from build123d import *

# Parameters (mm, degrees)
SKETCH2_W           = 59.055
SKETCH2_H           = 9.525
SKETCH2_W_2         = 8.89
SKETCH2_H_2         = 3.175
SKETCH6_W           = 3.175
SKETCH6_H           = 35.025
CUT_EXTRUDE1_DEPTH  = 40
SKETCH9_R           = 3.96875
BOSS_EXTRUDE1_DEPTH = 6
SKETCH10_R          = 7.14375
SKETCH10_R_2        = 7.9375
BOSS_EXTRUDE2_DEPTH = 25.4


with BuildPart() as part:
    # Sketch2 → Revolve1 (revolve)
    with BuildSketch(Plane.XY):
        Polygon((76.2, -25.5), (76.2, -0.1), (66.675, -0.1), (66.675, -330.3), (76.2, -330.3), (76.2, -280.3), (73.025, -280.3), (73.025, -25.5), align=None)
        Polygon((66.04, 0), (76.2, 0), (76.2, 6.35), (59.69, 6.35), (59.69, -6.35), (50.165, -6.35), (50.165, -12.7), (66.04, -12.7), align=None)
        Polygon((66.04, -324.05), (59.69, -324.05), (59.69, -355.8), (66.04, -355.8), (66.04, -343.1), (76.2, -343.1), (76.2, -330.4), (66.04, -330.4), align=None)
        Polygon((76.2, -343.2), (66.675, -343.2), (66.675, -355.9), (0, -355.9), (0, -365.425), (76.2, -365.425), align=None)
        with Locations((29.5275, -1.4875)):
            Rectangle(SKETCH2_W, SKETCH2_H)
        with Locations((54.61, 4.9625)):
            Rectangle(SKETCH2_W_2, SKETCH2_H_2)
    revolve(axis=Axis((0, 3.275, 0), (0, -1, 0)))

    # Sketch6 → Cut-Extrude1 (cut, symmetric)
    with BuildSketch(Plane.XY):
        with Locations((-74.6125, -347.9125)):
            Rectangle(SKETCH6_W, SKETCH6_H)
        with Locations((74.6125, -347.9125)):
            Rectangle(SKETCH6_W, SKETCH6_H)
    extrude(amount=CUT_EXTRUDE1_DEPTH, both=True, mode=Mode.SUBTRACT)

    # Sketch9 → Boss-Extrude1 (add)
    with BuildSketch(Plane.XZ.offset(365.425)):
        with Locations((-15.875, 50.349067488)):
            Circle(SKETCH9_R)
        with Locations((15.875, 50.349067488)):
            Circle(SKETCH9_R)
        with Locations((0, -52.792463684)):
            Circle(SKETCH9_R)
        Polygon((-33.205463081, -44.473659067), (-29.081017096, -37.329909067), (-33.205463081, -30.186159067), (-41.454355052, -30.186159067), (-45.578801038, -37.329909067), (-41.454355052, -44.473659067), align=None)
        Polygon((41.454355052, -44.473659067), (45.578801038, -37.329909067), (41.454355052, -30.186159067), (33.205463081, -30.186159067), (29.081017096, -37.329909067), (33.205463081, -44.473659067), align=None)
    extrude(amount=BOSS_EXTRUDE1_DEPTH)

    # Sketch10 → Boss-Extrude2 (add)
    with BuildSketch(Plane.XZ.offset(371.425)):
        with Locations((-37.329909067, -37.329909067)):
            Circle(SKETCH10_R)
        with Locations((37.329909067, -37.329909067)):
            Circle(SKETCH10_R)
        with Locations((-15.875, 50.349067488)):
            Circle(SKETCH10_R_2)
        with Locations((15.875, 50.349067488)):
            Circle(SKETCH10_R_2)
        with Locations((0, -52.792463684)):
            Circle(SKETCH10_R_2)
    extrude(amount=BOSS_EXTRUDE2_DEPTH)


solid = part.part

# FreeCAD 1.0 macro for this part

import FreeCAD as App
import Part
import Sketcher
Q = App.Units.Quantity

doc = App.newDocument("Part")
body = doc.addObject("PartDesign::Body", "Body")
body.AllowCompound = True

# Sketch on XY plane
sketch1 = body.newObject("Sketcher::SketchObject", "Sketch")
sketch1.AttachmentSupport = (doc.getObject("XY_Plane"), [""])
sketch1.MapMode = "FlatFace"
sketch1.addGeometry(Part.LineSegment(App.Vector(76.2, -25.5, 0), App.Vector(76.2, -0.1, 0)), False)
sketch1.addGeometry(Part.LineSegment(App.Vector(76.2, -0.1, 0), App.Vector(66.7, -0.1, 0)), False)
sketch1.addGeometry(Part.LineSegment(App.Vector(66.7, -0.1, 0), App.Vector(66.7, -330.3, 0)), False)
sketch1.addGeometry(Part.LineSegment(App.Vector(66.7, -330.3, 0), App.Vector(76.2, -330.3, 0)), False)
sketch1.addGeometry(Part.LineSegment(App.Vector(76.2, -330.3, 0), App.Vector(76.2, -280.3, 0)), False)
sketch1.addGeometry(Part.LineSegment(App.Vector(76.2, -280.3, 0), App.Vector(73, -280.3, 0)), False)
sketch1.addGeometry(Part.LineSegment(App.Vector(73, -280.3, 0), App.Vector(73, -25.5, 0)), False)
sketch1.addGeometry(Part.LineSegment(App.Vector(73, -25.5, 0), App.Vector(76.2, -25.5, 0)), False)
sketch1.addGeometry(Part.LineSegment(App.Vector(66, 0, 0), App.Vector(76.2, 0, 0)), False)
sketch1.addGeometry(Part.LineSegment(App.Vector(76.2, 0, 0), App.Vector(76.2, 6.3, 0)), False)
sketch1.addGeometry(Part.LineSegment(App.Vector(76.2, 6.3, 0), App.Vector(59.7, 6.3, 0)), False)
sketch1.addGeometry(Part.LineSegment(App.Vector(59.7, 6.3, 0), App.Vector(59.7, -6.3, 0)), False)
sketch1.addGeometry(Part.LineSegment(App.Vector(59.7, -6.3, 0), App.Vector(50.2, -6.3, 0)), False)
sketch1.addGeometry(Part.LineSegment(App.Vector(50.2, -6.3, 0), App.Vector(50.2, -12.7, 0)), False)
sketch1.addGeometry(Part.LineSegment(App.Vector(50.2, -12.7, 0), App.Vector(66, -12.7, 0)), False)
sketch1.addGeometry(Part.LineSegment(App.Vector(66, -12.7, 0), App.Vector(66, 0, 0)), False)
sketch1.addGeometry(Part.LineSegment(App.Vector(66, -324.1, 0), App.Vector(59.7, -324.1, 0)), False)
sketch1.addGeometry(Part.LineSegment(App.Vector(59.7, -324.1, 0), App.Vector(59.7, -355.8, 0)), False)
sketch1.addGeometry(Part.LineSegment(App.Vector(59.7, -355.8, 0), App.Vector(66, -355.8, 0)), False)
sketch1.addGeometry(Part.LineSegment(App.Vector(66, -355.8, 0), App.Vector(66, -343.1, 0)), False)
sketch1.addGeometry(Part.LineSegment(App.Vector(66, -343.1, 0), App.Vector(76.2, -343.1, 0)), False)
sketch1.addGeometry(Part.LineSegment(App.Vector(76.2, -343.1, 0), App.Vector(76.2, -330.4, 0)), False)
sketch1.addGeometry(Part.LineSegment(App.Vector(76.2, -330.4, 0), App.Vector(66, -330.4, 0)), False)
sketch1.addGeometry(Part.LineSegment(App.Vector(66, -330.4, 0), App.Vector(66, -324.1, 0)), False)
sketch1.addGeometry(Part.LineSegment(App.Vector(76.2, -343.2, 0), App.Vector(66.7, -343.2, 0)), False)
sketch1.addGeometry(Part.LineSegment(App.Vector(66.7, -343.2, 0), App.Vector(66.7, -355.9, 0)), False)
sketch1.addGeometry(Part.LineSegment(App.Vector(66.7, -355.9, 0), App.Vector(0, -355.9, 0)), False)
sketch1.addGeometry(Part.LineSegment(App.Vector(0, -355.9, 0), App.Vector(0, -365.4, 0)), False)
sketch1.addGeometry(Part.LineSegment(App.Vector(0, -365.4, 0), App.Vector(76.2, -365.4, 0)), False)
sketch1.addGeometry(Part.LineSegment(App.Vector(76.2, -365.4, 0), App.Vector(76.2, -343.2, 0)), False)
sketch1.addGeometry(Part.LineSegment(App.Vector(0, 3.3, 0), App.Vector(0, -6.2, 0)), False)
sketch1.addGeometry(Part.LineSegment(App.Vector(0, -6.2, 0), App.Vector(59.1, -6.2, 0)), False)
sketch1.addGeometry(Part.LineSegment(App.Vector(59.1, -6.2, 0), App.Vector(59.1, 3.3, 0)), False)
sketch1.addGeometry(Part.LineSegment(App.Vector(59.1, 3.3, 0), App.Vector(0, 3.3, 0)), False)
sketch1.addGeometry(Part.LineSegment(App.Vector(50.2, 6.5, 0), App.Vector(50.2, 3.4, 0)), False)
sketch1.addGeometry(Part.LineSegment(App.Vector(50.2, 3.4, 0), App.Vector(59.1, 3.4, 0)), False)
sketch1.addGeometry(Part.LineSegment(App.Vector(59.1, 3.4, 0), App.Vector(59.1, 6.5, 0)), False)
sketch1.addGeometry(Part.LineSegment(App.Vector(59.1, 6.5, 0), App.Vector(50.2, 6.5, 0)), False)
sketch1.addConstraint(Sketcher.Constraint("Coincident", 0, 2, 1, 1))
sketch1.addConstraint(Sketcher.Constraint("Coincident", 1, 2, 2, 1))
sketch1.addConstraint(Sketcher.Constraint("Coincident", 2, 2, 3, 1))
sketch1.addConstraint(Sketcher.Constraint("Coincident", 3, 2, 4, 1))
sketch1.addConstraint(Sketcher.Constraint("Coincident", 4, 2, 5, 1))
sketch1.addConstraint(Sketcher.Constraint("Coincident", 5, 2, 6, 1))
sketch1.addConstraint(Sketcher.Constraint("Coincident", 6, 2, 7, 1))
sketch1.addConstraint(Sketcher.Constraint("Coincident", 7, 2, 0, 1))
sketch1.addConstraint(Sketcher.Constraint("Coincident", 8, 2, 9, 1))
sketch1.addConstraint(Sketcher.Constraint("Coincident", 9, 2, 10, 1))
sketch1.addConstraint(Sketcher.Constraint("Coincident", 10, 2, 11, 1))
sketch1.addConstraint(Sketcher.Constraint("Coincident", 11, 2, 12, 1))
sketch1.addConstraint(Sketcher.Constraint("Coincident", 12, 2, 13, 1))
sketch1.addConstraint(Sketcher.Constraint("Coincident", 13, 2, 14, 1))
sketch1.addConstraint(Sketcher.Constraint("Coincident", 14, 2, 15, 1))
sketch1.addConstraint(Sketcher.Constraint("Coincident", 15, 2, 8, 1))
sketch1.addConstraint(Sketcher.Constraint("Coincident", 16, 2, 17, 1))
sketch1.addConstraint(Sketcher.Constraint("Coincident", 17, 2, 18, 1))
sketch1.addConstraint(Sketcher.Constraint("Coincident", 18, 2, 19, 1))
sketch1.addConstraint(Sketcher.Constraint("Coincident", 19, 2, 20, 1))
sketch1.addConstraint(Sketcher.Constraint("Coincident", 20, 2, 21, 1))
sketch1.addConstraint(Sketcher.Constraint("Coincident", 21, 2, 22, 1))
sketch1.addConstraint(Sketcher.Constraint("Coincident", 22, 2, 23, 1))
sketch1.addConstraint(Sketcher.Constraint("Coincident", 23, 2, 16, 1))
sketch1.addConstraint(Sketcher.Constraint("Coincident", 24, 2, 25, 1))
sketch1.addConstraint(Sketcher.Constraint("Coincident", 25, 2, 26, 1))
sketch1.addConstraint(Sketcher.Constraint("Coincident", 26, 2, 27, 1))
sketch1.addConstraint(Sketcher.Constraint("Coincident", 27, 2, 28, 1))
sketch1.addConstraint(Sketcher.Constraint("Coincident", 28, 2, 29, 1))
sketch1.addConstraint(Sketcher.Constraint("Coincident", 29, 2, 24, 1))
sketch1.addConstraint(Sketcher.Constraint("Coincident", 30, 2, 31, 1))
sketch1.addConstraint(Sketcher.Constraint("Coincident", 31, 2, 32, 1))
sketch1.addConstraint(Sketcher.Constraint("Coincident", 32, 2, 33, 1))
sketch1.addConstraint(Sketcher.Constraint("Coincident", 33, 2, 30, 1))
sketch1.addConstraint(Sketcher.Constraint("Coincident", 34, 2, 35, 1))
sketch1.addConstraint(Sketcher.Constraint("Coincident", 35, 2, 36, 1))
sketch1.addConstraint(Sketcher.Constraint("Coincident", 36, 2, 37, 1))
sketch1.addConstraint(Sketcher.Constraint("Coincident", 37, 2, 34, 1))
sketch1.addConstraint(Sketcher.Constraint("Vertical", 0))
sketch1.addConstraint(Sketcher.Constraint("Horizontal", 1))
sketch1.addConstraint(Sketcher.Constraint("Vertical", 2))
sketch1.addConstraint(Sketcher.Constraint("Horizontal", 3))
sketch1.addConstraint(Sketcher.Constraint("Vertical", 4))
sketch1.addConstraint(Sketcher.Constraint("Horizontal", 5))
sketch1.addConstraint(Sketcher.Constraint("Vertical", 6))
sketch1.addConstraint(Sketcher.Constraint("Horizontal", 7))
sketch1.addConstraint(Sketcher.Constraint("Horizontal", 8))
sketch1.addConstraint(Sketcher.Constraint("Vertical", 9))
sketch1.addConstraint(Sketcher.Constraint("Horizontal", 10))
sketch1.addConstraint(Sketcher.Constraint("Vertical", 11))
sketch1.addConstraint(Sketcher.Constraint("Horizontal", 12))
sketch1.addConstraint(Sketcher.Constraint("Vertical", 13))
sketch1.addConstraint(Sketcher.Constraint("Horizontal", 14))
sketch1.addConstraint(Sketcher.Constraint("Vertical", 15))
sketch1.addConstraint(Sketcher.Constraint("Horizontal", 16))
sketch1.addConstraint(Sketcher.Constraint("Vertical", 17))
sketch1.addConstraint(Sketcher.Constraint("Horizontal", 18))
sketch1.addConstraint(Sketcher.Constraint("Vertical", 19))
sketch1.addConstraint(Sketcher.Constraint("Horizontal", 20))
sketch1.addConstraint(Sketcher.Constraint("Vertical", 21))
sketch1.addConstraint(Sketcher.Constraint("Horizontal", 22))
sketch1.addConstraint(Sketcher.Constraint("Vertical", 23))
sketch1.addConstraint(Sketcher.Constraint("Horizontal", 24))
sketch1.addConstraint(Sketcher.Constraint("Vertical", 25))
sketch1.addConstraint(Sketcher.Constraint("Horizontal", 26))
sketch1.addConstraint(Sketcher.Constraint("Vertical", 27))
sketch1.addConstraint(Sketcher.Constraint("Horizontal", 28))
sketch1.addConstraint(Sketcher.Constraint("Vertical", 29))
sketch1.addConstraint(Sketcher.Constraint("Vertical", 30))
sketch1.addConstraint(Sketcher.Constraint("Horizontal", 31))
sketch1.addConstraint(Sketcher.Constraint("Vertical", 32))
sketch1.addConstraint(Sketcher.Constraint("Horizontal", 33))
sketch1.addConstraint(Sketcher.Constraint("Vertical", 34))
sketch1.addConstraint(Sketcher.Constraint("Horizontal", 35))
sketch1.addConstraint(Sketcher.Constraint("Vertical", 36))
sketch1.addConstraint(Sketcher.Constraint("Horizontal", 37))
sketch1.addConstraint(Sketcher.Constraint("PointOnObject", 8, 2, -1))
sketch1.addConstraint(Sketcher.Constraint("PointOnObject", 26, 2, -2))
sketch1.addConstraint(Sketcher.Constraint("PointOnObject", 30, 2, -2))
sketch1.addConstraint(Sketcher.Constraint("Vertical", 0, 2, 3, 2))
sketch1.addConstraint(Sketcher.Constraint("Vertical", 7, 2, 8, 2))
sketch1.addConstraint(Sketcher.Constraint("Vertical", 11, 2, 16, 2))
sketch1.addConstraint(Sketcher.Constraint("Vertical", 15, 2, 18, 2))
sketch1.addConstraint(Sketcher.Constraint("Vertical", 9, 2, 20, 2))
sketch1.addConstraint(Sketcher.Constraint("Vertical", 19, 2, 22, 2))
sketch1.addConstraint(Sketcher.Constraint("Vertical", 2, 2, 24, 2))
sketch1.addConstraint(Sketcher.Constraint("Vertical", 21, 2, 28, 2))
sketch1.addConstraint(Sketcher.Constraint("Vertical", 13, 2, 34, 2))
sketch1.addConstraint(Sketcher.Constraint("Vertical", 32, 2, 35, 2))
sketch1.addConstraint(Sketcher.Constraint("Equal", 3, 12))
sketch1.addConstraint(Sketcher.Constraint("Equal", 18, 9))
sketch1.addConstraint(Sketcher.Constraint("Equal", 9, 13))
sketch1.addConstraint(Sketcher.Constraint("Equal", 15, 19))
sketch1.addConstraint(Sketcher.Constraint("Equal", 19, 21))
sketch1.addConstraint(Sketcher.Constraint("Equal", 13, 23))
sketch1.addConstraint(Sketcher.Constraint("Equal", 21, 25))
sketch1.addConstraint(Sketcher.Constraint("Equal", 24, 27))
sketch1.addConstraint(Sketcher.Constraint("Equal", 27, 30))
sketch1.addConstraint(Sketcher.Constraint("Equal", 7, 34))
sketch1.addConstraint(Sketcher.Constraint("DistanceX", 28, 1, 28, 2, Q("3 in")))
sketch1.addConstraint(Sketcher.Constraint("DistanceY", 0, 1, 0, 2, Q("1 in")))
sketch1.addConstraint(Sketcher.Constraint("DistanceY", 2, 2, 2, 1, Q("13 in")))
sketch1.addConstraint(Sketcher.Constraint("DistanceX", 8, 1, 8, 2, Q("0.4 in")))
sketch1.addConstraint(Sketcher.Constraint("DistanceY", 11, 2, 11, 1, Q("0.5 in")))
sketch1.addConstraint(Sketcher.Constraint("DistanceX", 10, 2, 10, 1, Q("0.65 in")))
sketch1.addConstraint(Sketcher.Constraint("DistanceX", 35, 1, 35, 2, Q("0.35 in")))
sketch1.addConstraint(Sketcher.Constraint("DistanceX", 13, 2, 6, 2, Q("0.9 in")))
sketch1.addConstraint(Sketcher.Constraint("DistanceX", 1, 2, 1, 1, Q("0.375 in")))
sketch1.addConstraint(Sketcher.Constraint("DistanceY", 4, 1, 4, 2, Q("50 mm")))
sketch1.addConstraint(Sketcher.Constraint("DistanceY", 0, 2, -1, 1, Q("0.1 mm")))
sketch1.addConstraint(Sketcher.Constraint("DistanceY", 16, 2, -1, 1, Q("324.05 mm")))
sketch1.addConstraint(Sketcher.Constraint("DistanceY", 24, 2, -1, 1, Q("343.2 mm")))
sketch1.addConstraint(Sketcher.Constraint("DistanceY", 30, 2, -1, 1, Q("6.25 mm")))
sketch1.addConstraint(Sketcher.Constraint("DistanceY", -1, 1, 34, 2, Q("3.375 mm")))
revolution = body.newObject("PartDesign::Revolution", "Revolution")
revolution.Profile = sketch1
revolution.ReferenceAxis = (sketch1, ["V_Axis"])
revolution.Angle = 360

# Sketch on XY plane
sketch2 = body.newObject("Sketcher::SketchObject", "Sketch001")
sketch2.AttachmentSupport = (doc.getObject("XY_Plane"), [""])
sketch2.MapMode = "FlatFace"
sketch2.addGeometry(Part.LineSegment(App.Vector(-76.2, -330.4, 0), App.Vector(-76.2, -365.4, 0)), False)
sketch2.addGeometry(Part.LineSegment(App.Vector(-76.2, -365.4, 0), App.Vector(-73, -365.4, 0)), False)
sketch2.addGeometry(Part.LineSegment(App.Vector(-73, -365.4, 0), App.Vector(-73, -330.4, 0)), False)
sketch2.addGeometry(Part.LineSegment(App.Vector(-73, -330.4, 0), App.Vector(-76.2, -330.4, 0)), False)
sketch2.addGeometry(Part.LineSegment(App.Vector(73, -330.4, 0), App.Vector(73, -365.4, 0)), False)
sketch2.addGeometry(Part.LineSegment(App.Vector(73, -365.4, 0), App.Vector(76.2, -365.4, 0)), False)
sketch2.addGeometry(Part.LineSegment(App.Vector(76.2, -365.4, 0), App.Vector(76.2, -330.4, 0)), False)
sketch2.addGeometry(Part.LineSegment(App.Vector(76.2, -330.4, 0), App.Vector(73, -330.4, 0)), False)
sketch2.addConstraint(Sketcher.Constraint("Coincident", 0, 2, 1, 1))
sketch2.addConstraint(Sketcher.Constraint("Coincident", 1, 2, 2, 1))
sketch2.addConstraint(Sketcher.Constraint("Coincident", 2, 2, 3, 1))
sketch2.addConstraint(Sketcher.Constraint("Coincident", 3, 2, 0, 1))
sketch2.addConstraint(Sketcher.Constraint("Coincident", 4, 2, 5, 1))
sketch2.addConstraint(Sketcher.Constraint("Coincident", 5, 2, 6, 1))
sketch2.addConstraint(Sketcher.Constraint("Coincident", 6, 2, 7, 1))
sketch2.addConstraint(Sketcher.Constraint("Coincident", 7, 2, 4, 1))
sketch2.addConstraint(Sketcher.Constraint("Vertical", 0))
sketch2.addConstraint(Sketcher.Constraint("Horizontal", 1))
sketch2.addConstraint(Sketcher.Constraint("Vertical", 2))
sketch2.addConstraint(Sketcher.Constraint("Horizontal", 3))
sketch2.addConstraint(Sketcher.Constraint("Vertical", 4))
sketch2.addConstraint(Sketcher.Constraint("Horizontal", 5))
sketch2.addConstraint(Sketcher.Constraint("Vertical", 6))
sketch2.addConstraint(Sketcher.Constraint("Horizontal", 7))
sketch2.addConstraint(Sketcher.Constraint("Symmetric", 1, 2, 4, 2, -2))
sketch2.addConstraint(Sketcher.Constraint("Symmetric", 3, 2, 6, 2, -2))
sketch2.addConstraint(Sketcher.Constraint("DistanceX", 0, 2, -1, 1, Q("3 in")))
sketch2.addConstraint(Sketcher.Constraint("DistanceX", 1, 1, 1, 2, Q("0.125 in")))
sketch2.addConstraint(Sketcher.Constraint("DistanceY", 0, 2, 0, 1, Q("35.025 mm")))
sketch2.addConstraint(Sketcher.Constraint("DistanceY", 0, 2, -1, 1, Q("365.425 mm")))
pocket1 = body.newObject("PartDesign::Pocket", "Pocket")
pocket1.Profile = sketch2
pocket1.Length = 80
pocket1.Midplane = True

# Sketch on XZ plane
sketch3 = body.newObject("Sketcher::SketchObject", "Sketch002")
sketch3.AttachmentSupport = (doc.getObject("XZ_Plane"), [""])
sketch3.MapMode = "FlatFace"
sketch3.AttachmentOffset = App.Placement(App.Vector(0, 0, 365.425), App.Rotation())
sketch3.addGeometry(Part.Circle(App.Vector(-15.9, 50.3, 0), App.Vector(0, 0, 1), 4), False)
sketch3.addGeometry(Part.Circle(App.Vector(15.9, 50.3, 0), App.Vector(0, 0, 1), 4), False)
sketch3.addGeometry(Part.Circle(App.Vector(0, -52.8, 0), App.Vector(0, 0, 1), 4), False)
sketch3.addGeometry(Part.LineSegment(App.Vector(-33.2, -44.5, 0), App.Vector(-29.1, -37.3, 0)), False)
sketch3.addGeometry(Part.LineSegment(App.Vector(-29.1, -37.3, 0), App.Vector(-33.2, -30.2, 0)), False)
sketch3.addGeometry(Part.LineSegment(App.Vector(-33.2, -30.2, 0), App.Vector(-41.5, -30.2, 0)), False)
sketch3.addGeometry(Part.LineSegment(App.Vector(-41.5, -30.2, 0), App.Vector(-45.6, -37.3, 0)), False)
sketch3.addGeometry(Part.LineSegment(App.Vector(-45.6, -37.3, 0), App.Vector(-41.5, -44.5, 0)), False)
sketch3.addGeometry(Part.LineSegment(App.Vector(-41.5, -44.5, 0), App.Vector(-33.2, -44.5, 0)), False)
sketch3.addGeometry(Part.LineSegment(App.Vector(41.5, -44.5, 0), App.Vector(45.6, -37.3, 0)), False)
sketch3.addGeometry(Part.LineSegment(App.Vector(45.6, -37.3, 0), App.Vector(41.5, -30.2, 0)), False)
sketch3.addGeometry(Part.LineSegment(App.Vector(41.5, -30.2, 0), App.Vector(33.2, -30.2, 0)), False)
sketch3.addGeometry(Part.LineSegment(App.Vector(33.2, -30.2, 0), App.Vector(29.1, -37.3, 0)), False)
sketch3.addGeometry(Part.LineSegment(App.Vector(29.1, -37.3, 0), App.Vector(33.2, -44.5, 0)), False)
sketch3.addGeometry(Part.LineSegment(App.Vector(33.2, -44.5, 0), App.Vector(41.5, -44.5, 0)), False)
sketch3.addConstraint(Sketcher.Constraint("Coincident", 3, 2, 4, 1))
sketch3.addConstraint(Sketcher.Constraint("Coincident", 4, 2, 5, 1))
sketch3.addConstraint(Sketcher.Constraint("Coincident", 5, 2, 6, 1))
sketch3.addConstraint(Sketcher.Constraint("Coincident", 6, 2, 7, 1))
sketch3.addConstraint(Sketcher.Constraint("Coincident", 7, 2, 8, 1))
sketch3.addConstraint(Sketcher.Constraint("Coincident", 8, 2, 3, 1))
sketch3.addConstraint(Sketcher.Constraint("Coincident", 9, 2, 10, 1))
sketch3.addConstraint(Sketcher.Constraint("Coincident", 10, 2, 11, 1))
sketch3.addConstraint(Sketcher.Constraint("Coincident", 11, 2, 12, 1))
sketch3.addConstraint(Sketcher.Constraint("Coincident", 12, 2, 13, 1))
sketch3.addConstraint(Sketcher.Constraint("Coincident", 13, 2, 14, 1))
sketch3.addConstraint(Sketcher.Constraint("Coincident", 14, 2, 9, 1))
sketch3.addConstraint(Sketcher.Constraint("Horizontal", 5))
sketch3.addConstraint(Sketcher.Constraint("Horizontal", 8))
sketch3.addConstraint(Sketcher.Constraint("Horizontal", 11))
sketch3.addConstraint(Sketcher.Constraint("Horizontal", 14))
sketch3.addConstraint(Sketcher.Constraint("Equal", 0, 1))
sketch3.addConstraint(Sketcher.Constraint("Equal", 1, 2))
sketch3.addConstraint(Sketcher.Constraint("Symmetric", 0, 3, 1, 3, -2))
sketch3.addConstraint(Sketcher.Constraint("Symmetric", 6, 2, 9, 2, -2))
sketch3.addConstraint(Sketcher.Constraint("Symmetric", 5, 2, 10, 2, -2))
sketch3.addConstraint(Sketcher.Constraint("Symmetric", 3, 2, 12, 2, -2))
sketch3.addConstraint(Sketcher.Constraint("Symmetric", 8, 2, 13, 2, -2))
sketch3.addConstraint(Sketcher.Constraint("PointOnObject", 2, 3, -2))
sketch3.addConstraint(Sketcher.Constraint("Parallel", 3, 6))
sketch3.addConstraint(Sketcher.Constraint("Parallel", 4, 7))
sketch3.addConstraint(Sketcher.Constraint("Parallel", 6, 9))
sketch3.addConstraint(Sketcher.Constraint("Parallel", 7, 10))
sketch3.addConstraint(Sketcher.Constraint("Parallel", 9, 12))
sketch3.addConstraint(Sketcher.Constraint("Horizontal", 3, 2, 6, 2))
sketch3.addConstraint(Sketcher.Constraint("Vertical", 5, 2, 7, 2))
sketch3.addConstraint(Sketcher.Constraint("Diameter", 0, Q("0.3125 in")))
sketch3.addConstraint(Sketcher.Constraint("Angle", 3, Q("60 deg")))
sketch3.addConstraint(Sketcher.Constraint("DistanceX", 0, 3, 1, 3, Q("1.25 in")))
sketch3.addConstraint(Sketcher.Constraint("DistanceY", 3, 2, 4, 2, Q("0.28125 in")))
sketch3.addConstraint(Sketcher.Constraint("DistanceX", 5, 2, 5, 1, Q("8.248892 mm")))
sketch3.addConstraint(Sketcher.Constraint("DistanceX", 6, 2, -1, 1, Q("45.578801 mm")))
sketch3.addConstraint(Sketcher.Constraint("DistanceY", 3, 2, -1, 1, Q("37.329909 mm")))
sketch3.addConstraint(Sketcher.Constraint("DistanceY", 2, 3, 0, 3, Q("103.141531 mm")))
sketch3.addConstraint(Sketcher.Constraint("DistanceY", -1, 1, 0, 3, Q("50.349067 mm")))
pad1 = body.newObject("PartDesign::Pad", "Pad")
pad1.Profile = sketch3
pad1.Length = 6

# Sketch on XZ plane
sketch4 = body.newObject("Sketcher::SketchObject", "Sketch003")
sketch4.AttachmentSupport = (doc.getObject("XZ_Plane"), [""])
sketch4.MapMode = "FlatFace"
sketch4.AttachmentOffset = App.Placement(App.Vector(0, 0, 371.425), App.Rotation())
sketch4.addGeometry(Part.Circle(App.Vector(-37, -37, 0), App.Vector(0, 0, 1), 7), False)
sketch4.addGeometry(Part.Circle(App.Vector(37, -37, 0), App.Vector(0, 0, 1), 7), False)
sketch4.addGeometry(Part.Circle(App.Vector(-16, 50, 0), App.Vector(0, 0, 1), 8), False)
sketch4.addGeometry(Part.Circle(App.Vector(16, 50, 0), App.Vector(0, 0, 1), 8), False)
sketch4.addGeometry(Part.Circle(App.Vector(0, -53, 0), App.Vector(0, 0, 1), 8), False)
sketch4.addConstraint(Sketcher.Constraint("Equal", 0, 1))
sketch4.addConstraint(Sketcher.Constraint("Equal", 2, 3))
sketch4.addConstraint(Sketcher.Constraint("Equal", 3, 4))
sketch4.addConstraint(Sketcher.Constraint("Symmetric", 0, 3, 1, 3, -2))
sketch4.addConstraint(Sketcher.Constraint("Symmetric", 2, 3, 3, 3, -2))
sketch4.addConstraint(Sketcher.Constraint("PointOnObject", 4, 3, -2))
sketch4.addConstraint(Sketcher.Constraint("Diameter", 0, Q("0.5625 in")))
sketch4.addConstraint(Sketcher.Constraint("Diameter", 2, Q("0.625 in")))
sketch4.addConstraint(Sketcher.Constraint("DistanceX", 2, 3, 3, 3, Q("1.25 in")))
sketch4.addConstraint(Sketcher.Constraint("DistanceX", 0, 3, -1, 1, Q("37.329909 mm")))
sketch4.addConstraint(Sketcher.Constraint("DistanceY", 0, 3, -1, 1, Q("37.329909 mm")))
sketch4.addConstraint(Sketcher.Constraint("DistanceY", 4, 3, 2, 3, Q("103.141531 mm")))
sketch4.addConstraint(Sketcher.Constraint("DistanceY", -1, 1, 2, 3, Q("50.349067 mm")))
pad2 = body.newObject("PartDesign::Pad", "Pad001")
pad2.Profile = sketch4
pad2.Length = Q("1 in")

doc.recompute()
